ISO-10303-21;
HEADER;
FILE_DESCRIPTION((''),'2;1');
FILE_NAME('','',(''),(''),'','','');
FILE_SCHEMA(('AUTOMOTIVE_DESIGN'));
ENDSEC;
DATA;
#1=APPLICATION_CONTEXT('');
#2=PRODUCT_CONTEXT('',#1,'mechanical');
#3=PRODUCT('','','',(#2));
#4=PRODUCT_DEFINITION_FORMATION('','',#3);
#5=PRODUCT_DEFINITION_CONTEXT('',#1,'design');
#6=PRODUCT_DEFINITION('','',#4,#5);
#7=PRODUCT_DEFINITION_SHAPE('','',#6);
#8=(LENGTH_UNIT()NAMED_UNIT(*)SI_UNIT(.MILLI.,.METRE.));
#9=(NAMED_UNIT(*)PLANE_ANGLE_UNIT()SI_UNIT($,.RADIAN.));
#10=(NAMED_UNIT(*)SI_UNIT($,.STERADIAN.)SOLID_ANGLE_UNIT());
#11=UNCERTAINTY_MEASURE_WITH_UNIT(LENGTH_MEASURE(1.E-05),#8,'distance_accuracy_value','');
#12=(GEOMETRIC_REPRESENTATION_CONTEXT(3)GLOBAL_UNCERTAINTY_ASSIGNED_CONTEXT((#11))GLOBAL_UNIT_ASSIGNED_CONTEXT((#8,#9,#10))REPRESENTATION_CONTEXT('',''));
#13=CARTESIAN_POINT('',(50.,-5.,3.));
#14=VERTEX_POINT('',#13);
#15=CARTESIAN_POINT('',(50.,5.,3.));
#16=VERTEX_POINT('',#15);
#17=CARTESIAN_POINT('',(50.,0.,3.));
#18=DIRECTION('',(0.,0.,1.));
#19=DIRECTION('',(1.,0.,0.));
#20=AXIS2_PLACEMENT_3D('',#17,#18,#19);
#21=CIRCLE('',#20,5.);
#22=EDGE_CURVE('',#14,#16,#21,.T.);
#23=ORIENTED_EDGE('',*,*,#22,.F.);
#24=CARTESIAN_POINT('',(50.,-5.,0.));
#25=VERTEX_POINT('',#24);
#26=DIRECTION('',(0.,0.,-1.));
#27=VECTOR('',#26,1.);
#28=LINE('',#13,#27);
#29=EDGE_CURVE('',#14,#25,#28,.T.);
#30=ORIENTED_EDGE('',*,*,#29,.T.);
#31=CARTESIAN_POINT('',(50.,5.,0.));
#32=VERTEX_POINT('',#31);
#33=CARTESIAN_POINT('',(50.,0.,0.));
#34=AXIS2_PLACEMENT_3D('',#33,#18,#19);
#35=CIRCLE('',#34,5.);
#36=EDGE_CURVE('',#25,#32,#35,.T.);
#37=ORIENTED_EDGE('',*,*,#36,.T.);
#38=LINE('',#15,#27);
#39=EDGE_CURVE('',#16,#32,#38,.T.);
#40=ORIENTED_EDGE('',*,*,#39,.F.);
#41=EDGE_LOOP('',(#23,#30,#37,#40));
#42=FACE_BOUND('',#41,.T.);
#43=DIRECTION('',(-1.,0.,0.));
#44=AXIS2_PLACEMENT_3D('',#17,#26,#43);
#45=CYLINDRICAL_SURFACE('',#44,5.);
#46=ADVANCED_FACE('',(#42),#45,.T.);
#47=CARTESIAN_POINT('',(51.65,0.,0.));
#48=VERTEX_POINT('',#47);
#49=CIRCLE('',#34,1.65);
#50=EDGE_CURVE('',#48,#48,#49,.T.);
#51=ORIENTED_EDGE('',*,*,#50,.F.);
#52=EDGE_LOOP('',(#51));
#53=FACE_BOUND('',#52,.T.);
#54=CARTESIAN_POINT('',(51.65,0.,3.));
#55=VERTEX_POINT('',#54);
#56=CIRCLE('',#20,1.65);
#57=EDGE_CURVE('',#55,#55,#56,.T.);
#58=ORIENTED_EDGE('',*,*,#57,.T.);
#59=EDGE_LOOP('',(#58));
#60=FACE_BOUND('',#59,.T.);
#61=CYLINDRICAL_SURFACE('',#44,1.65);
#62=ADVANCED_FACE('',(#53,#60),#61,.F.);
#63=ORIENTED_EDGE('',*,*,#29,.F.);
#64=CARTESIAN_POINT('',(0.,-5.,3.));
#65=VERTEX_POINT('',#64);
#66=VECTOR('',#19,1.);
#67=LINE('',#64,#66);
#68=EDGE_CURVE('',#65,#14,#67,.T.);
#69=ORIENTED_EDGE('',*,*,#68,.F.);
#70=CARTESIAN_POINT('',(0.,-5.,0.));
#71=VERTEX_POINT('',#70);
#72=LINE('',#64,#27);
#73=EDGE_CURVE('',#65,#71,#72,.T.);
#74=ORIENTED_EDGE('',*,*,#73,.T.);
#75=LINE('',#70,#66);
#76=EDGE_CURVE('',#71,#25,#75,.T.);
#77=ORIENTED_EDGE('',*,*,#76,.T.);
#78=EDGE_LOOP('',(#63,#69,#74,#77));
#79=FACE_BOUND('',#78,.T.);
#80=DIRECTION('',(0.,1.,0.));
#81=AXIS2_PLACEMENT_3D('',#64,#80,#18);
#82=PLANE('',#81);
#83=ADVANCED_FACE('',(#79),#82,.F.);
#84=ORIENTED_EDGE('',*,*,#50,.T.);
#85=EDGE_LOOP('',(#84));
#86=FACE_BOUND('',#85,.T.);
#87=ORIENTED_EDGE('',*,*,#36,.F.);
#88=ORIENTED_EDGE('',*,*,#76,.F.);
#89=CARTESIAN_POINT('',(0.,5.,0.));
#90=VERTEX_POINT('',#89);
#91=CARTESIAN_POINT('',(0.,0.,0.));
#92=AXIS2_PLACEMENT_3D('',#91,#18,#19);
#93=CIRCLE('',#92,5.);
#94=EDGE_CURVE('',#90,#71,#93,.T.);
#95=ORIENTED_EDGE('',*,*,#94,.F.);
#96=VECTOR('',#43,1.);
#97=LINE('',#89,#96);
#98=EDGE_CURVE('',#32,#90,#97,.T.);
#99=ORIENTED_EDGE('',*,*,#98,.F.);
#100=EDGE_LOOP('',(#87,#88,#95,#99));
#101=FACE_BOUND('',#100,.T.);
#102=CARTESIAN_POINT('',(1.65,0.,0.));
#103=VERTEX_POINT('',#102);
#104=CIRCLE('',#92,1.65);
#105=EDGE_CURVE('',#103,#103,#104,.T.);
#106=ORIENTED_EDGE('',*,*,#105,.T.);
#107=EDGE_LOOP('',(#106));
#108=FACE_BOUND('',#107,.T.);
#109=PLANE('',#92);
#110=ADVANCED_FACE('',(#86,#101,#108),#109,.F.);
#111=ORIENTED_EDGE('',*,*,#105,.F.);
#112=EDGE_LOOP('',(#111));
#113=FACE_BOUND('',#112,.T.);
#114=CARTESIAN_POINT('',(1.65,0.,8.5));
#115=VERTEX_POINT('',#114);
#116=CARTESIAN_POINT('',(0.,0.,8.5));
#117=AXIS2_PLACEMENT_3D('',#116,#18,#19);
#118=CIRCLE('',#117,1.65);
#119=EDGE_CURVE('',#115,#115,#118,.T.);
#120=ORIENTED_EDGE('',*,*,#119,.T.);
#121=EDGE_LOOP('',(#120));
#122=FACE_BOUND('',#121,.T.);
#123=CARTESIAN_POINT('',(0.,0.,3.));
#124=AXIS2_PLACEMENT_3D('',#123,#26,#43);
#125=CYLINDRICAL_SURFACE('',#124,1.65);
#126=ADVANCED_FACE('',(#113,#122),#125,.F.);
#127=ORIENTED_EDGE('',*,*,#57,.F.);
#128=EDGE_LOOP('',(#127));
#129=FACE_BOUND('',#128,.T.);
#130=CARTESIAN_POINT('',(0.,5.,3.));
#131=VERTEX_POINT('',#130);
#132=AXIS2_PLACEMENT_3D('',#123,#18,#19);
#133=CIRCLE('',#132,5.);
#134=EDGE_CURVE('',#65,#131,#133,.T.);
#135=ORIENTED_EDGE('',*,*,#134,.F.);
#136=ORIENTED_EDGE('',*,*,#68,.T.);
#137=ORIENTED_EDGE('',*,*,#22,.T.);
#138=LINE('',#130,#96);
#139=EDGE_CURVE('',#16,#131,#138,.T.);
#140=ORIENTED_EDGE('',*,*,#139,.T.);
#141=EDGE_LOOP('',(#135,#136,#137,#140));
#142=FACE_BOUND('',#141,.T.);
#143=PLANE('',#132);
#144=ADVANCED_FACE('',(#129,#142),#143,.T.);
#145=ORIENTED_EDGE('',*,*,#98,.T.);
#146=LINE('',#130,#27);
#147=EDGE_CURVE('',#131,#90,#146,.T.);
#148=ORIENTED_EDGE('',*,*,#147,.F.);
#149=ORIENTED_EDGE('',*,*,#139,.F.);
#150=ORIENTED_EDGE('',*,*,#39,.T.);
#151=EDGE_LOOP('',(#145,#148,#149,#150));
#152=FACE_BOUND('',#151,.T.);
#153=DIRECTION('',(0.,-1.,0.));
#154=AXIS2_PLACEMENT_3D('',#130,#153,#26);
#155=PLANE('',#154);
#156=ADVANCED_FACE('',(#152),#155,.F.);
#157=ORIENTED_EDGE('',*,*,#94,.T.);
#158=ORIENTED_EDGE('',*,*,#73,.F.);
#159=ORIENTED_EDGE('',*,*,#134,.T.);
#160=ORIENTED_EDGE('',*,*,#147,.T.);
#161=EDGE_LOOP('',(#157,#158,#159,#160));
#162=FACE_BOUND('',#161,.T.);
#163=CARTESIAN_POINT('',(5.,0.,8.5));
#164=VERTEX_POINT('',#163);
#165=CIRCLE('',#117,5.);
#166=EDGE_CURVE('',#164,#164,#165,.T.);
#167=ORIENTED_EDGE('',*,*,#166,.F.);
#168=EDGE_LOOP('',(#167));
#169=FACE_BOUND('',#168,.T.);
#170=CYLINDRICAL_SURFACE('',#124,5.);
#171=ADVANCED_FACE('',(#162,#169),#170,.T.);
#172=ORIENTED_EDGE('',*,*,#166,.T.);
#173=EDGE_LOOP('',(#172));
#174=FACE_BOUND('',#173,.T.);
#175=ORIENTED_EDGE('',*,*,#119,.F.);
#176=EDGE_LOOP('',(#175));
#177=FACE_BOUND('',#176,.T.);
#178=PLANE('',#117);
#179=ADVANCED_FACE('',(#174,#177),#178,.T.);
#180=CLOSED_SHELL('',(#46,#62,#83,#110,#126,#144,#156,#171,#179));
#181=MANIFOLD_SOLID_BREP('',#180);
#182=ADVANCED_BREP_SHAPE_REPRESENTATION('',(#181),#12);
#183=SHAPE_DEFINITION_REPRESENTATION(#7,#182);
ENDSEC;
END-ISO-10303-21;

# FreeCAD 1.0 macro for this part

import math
import FreeCAD as App
import Part
import Sketcher

V = App.Vector

doc = App.newDocument("Part")
params = doc.addObject("Spreadsheet::Sheet", "Params")
for row, (alias, value) in enumerate([
    ("sketch1_radius", "5 mm"),
    ("sketch1_diameter", "3.3 mm"),
    ("sketch1_width", "50 mm"),
    ("pad1_length", "3 mm"),
    ("sketch2_diameter", "10 mm"),
    ("sketch2_diameter2", "3.3 mm"),
    ("pad2_length", "5.5 mm"),
], start=1):
    params.set(f"A{row}", alias)
    params.set(f"B{row}", "=" + value)
    params.setAlias(f"B{row}", alias)

body = doc.addObject("PartDesign::Body", "Body")

sketch1 = doc.addObject("Sketcher::SketchObject", "Sketch")
body.addObject(sketch1)
sketch1.AttachmentSupport = (doc.XY_Plane, [""])
sketch1.MapMode = "FlatFace"
sketch1.addGeometry(Part.LineSegment(V(50, 5, 0), V(0, 5, 0)), False)
sketch1.addGeometry(Part.ArcOfCircle(Part.Circle(V(0, 0, 0), V(0, 0, 1), 5), math.radians(90), math.radians(270)), False)
sketch1.addGeometry(Part.LineSegment(V(0, -5, 0), V(50, -5, 0)), False)
sketch1.addGeometry(Part.ArcOfCircle(Part.Circle(V(50, 0, 0), V(0, 0, 1), 5), math.radians(-90), math.radians(90)), False)
sketch1.addGeometry(Part.Circle(V(50, 0, 0), V(0, 0, 1), 1.6), False)
sketch1.addGeometry(Part.Circle(V(0, 0, 0), V(0, 0, 1), 1.6), False)
sketch1.addConstraint(Sketcher.Constraint("Tangent", 0, 2, 1, 1))
sketch1.addConstraint(Sketcher.Constraint("Tangent", 1, 2, 2, 1))
sketch1.addConstraint(Sketcher.Constraint("Tangent", 2, 2, 3, 1))
sketch1.addConstraint(Sketcher.Constraint("Tangent", 3, 2, 0, 1))
sketch1.addConstraint(Sketcher.Constraint("Horizontal", 0))
sketch1.addConstraint(Sketcher.Constraint("Horizontal", 2))
sketch1.addConstraint(Sketcher.Constraint("Coincident", 1, 3, -1, 1))
sketch1.addConstraint(Sketcher.Constraint("Coincident", 5, 3, -1, 1))
sketch1.addConstraint(Sketcher.Constraint("Coincident", 4, 3, 3, 3))
sketch1.addConstraint(Sketcher.Constraint("Equal", 4, 5))
sketch1.addConstraint(Sketcher.Constraint("Radius", 1, 5.0))
sketch1.addConstraint(Sketcher.Constraint("Diameter", 4, 3.3))
sketch1.addConstraint(Sketcher.Constraint("DistanceX", 0, 2, 0, 1, 50.0))
sketch1.setExpression("Constraints[10]", "Params.sketch1_radius")
sketch1.setExpression("Constraints[11]", "Params.sketch1_diameter")
sketch1.setExpression("Constraints[12]", "Params.sketch1_width")
pad1 = doc.addObject("PartDesign::Pad", "Pad")
body.addObject(pad1)
pad1.Profile = sketch1
pad1.setExpression("Length", "Params.pad1_length")

sketch2 = doc.addObject("Sketcher::SketchObject", "Sketch001")
body.addObject(sketch2)
sketch2.AttachmentSupport = (doc.XY_Plane, [""])
sketch2.MapMode = "FlatFace"
sketch2.AttachmentOffset = App.Placement(V(0, 0, 3), App.Rotation())
sketch2.addGeometry(Part.Circle(V(0, 0, 0), V(0, 0, 1), 5), False)
sketch2.addGeometry(Part.Circle(V(0, 0, 0), V(0, 0, 1), 1.6), False)
sketch2.addConstraint(Sketcher.Constraint("Coincident", 0, 3, -1, 1))
sketch2.addConstraint(Sketcher.Constraint("Coincident", 1, 3, -1, 1))
sketch2.addConstraint(Sketcher.Constraint("Diameter", 0, 10.0))
sketch2.addConstraint(Sketcher.Constraint("Diameter", 1, 3.3))
sketch2.setExpression("Constraints[2]", "Params.sketch2_diameter")
sketch2.setExpression("Constraints[3]", "Params.sketch2_diameter2")
pad2 = doc.addObject("PartDesign::Pad", "Pad001")
body.addObject(pad2)
pad2.Profile = sketch2
pad2.setExpression("Length", "Params.pad2_length")

doc.recompute()
